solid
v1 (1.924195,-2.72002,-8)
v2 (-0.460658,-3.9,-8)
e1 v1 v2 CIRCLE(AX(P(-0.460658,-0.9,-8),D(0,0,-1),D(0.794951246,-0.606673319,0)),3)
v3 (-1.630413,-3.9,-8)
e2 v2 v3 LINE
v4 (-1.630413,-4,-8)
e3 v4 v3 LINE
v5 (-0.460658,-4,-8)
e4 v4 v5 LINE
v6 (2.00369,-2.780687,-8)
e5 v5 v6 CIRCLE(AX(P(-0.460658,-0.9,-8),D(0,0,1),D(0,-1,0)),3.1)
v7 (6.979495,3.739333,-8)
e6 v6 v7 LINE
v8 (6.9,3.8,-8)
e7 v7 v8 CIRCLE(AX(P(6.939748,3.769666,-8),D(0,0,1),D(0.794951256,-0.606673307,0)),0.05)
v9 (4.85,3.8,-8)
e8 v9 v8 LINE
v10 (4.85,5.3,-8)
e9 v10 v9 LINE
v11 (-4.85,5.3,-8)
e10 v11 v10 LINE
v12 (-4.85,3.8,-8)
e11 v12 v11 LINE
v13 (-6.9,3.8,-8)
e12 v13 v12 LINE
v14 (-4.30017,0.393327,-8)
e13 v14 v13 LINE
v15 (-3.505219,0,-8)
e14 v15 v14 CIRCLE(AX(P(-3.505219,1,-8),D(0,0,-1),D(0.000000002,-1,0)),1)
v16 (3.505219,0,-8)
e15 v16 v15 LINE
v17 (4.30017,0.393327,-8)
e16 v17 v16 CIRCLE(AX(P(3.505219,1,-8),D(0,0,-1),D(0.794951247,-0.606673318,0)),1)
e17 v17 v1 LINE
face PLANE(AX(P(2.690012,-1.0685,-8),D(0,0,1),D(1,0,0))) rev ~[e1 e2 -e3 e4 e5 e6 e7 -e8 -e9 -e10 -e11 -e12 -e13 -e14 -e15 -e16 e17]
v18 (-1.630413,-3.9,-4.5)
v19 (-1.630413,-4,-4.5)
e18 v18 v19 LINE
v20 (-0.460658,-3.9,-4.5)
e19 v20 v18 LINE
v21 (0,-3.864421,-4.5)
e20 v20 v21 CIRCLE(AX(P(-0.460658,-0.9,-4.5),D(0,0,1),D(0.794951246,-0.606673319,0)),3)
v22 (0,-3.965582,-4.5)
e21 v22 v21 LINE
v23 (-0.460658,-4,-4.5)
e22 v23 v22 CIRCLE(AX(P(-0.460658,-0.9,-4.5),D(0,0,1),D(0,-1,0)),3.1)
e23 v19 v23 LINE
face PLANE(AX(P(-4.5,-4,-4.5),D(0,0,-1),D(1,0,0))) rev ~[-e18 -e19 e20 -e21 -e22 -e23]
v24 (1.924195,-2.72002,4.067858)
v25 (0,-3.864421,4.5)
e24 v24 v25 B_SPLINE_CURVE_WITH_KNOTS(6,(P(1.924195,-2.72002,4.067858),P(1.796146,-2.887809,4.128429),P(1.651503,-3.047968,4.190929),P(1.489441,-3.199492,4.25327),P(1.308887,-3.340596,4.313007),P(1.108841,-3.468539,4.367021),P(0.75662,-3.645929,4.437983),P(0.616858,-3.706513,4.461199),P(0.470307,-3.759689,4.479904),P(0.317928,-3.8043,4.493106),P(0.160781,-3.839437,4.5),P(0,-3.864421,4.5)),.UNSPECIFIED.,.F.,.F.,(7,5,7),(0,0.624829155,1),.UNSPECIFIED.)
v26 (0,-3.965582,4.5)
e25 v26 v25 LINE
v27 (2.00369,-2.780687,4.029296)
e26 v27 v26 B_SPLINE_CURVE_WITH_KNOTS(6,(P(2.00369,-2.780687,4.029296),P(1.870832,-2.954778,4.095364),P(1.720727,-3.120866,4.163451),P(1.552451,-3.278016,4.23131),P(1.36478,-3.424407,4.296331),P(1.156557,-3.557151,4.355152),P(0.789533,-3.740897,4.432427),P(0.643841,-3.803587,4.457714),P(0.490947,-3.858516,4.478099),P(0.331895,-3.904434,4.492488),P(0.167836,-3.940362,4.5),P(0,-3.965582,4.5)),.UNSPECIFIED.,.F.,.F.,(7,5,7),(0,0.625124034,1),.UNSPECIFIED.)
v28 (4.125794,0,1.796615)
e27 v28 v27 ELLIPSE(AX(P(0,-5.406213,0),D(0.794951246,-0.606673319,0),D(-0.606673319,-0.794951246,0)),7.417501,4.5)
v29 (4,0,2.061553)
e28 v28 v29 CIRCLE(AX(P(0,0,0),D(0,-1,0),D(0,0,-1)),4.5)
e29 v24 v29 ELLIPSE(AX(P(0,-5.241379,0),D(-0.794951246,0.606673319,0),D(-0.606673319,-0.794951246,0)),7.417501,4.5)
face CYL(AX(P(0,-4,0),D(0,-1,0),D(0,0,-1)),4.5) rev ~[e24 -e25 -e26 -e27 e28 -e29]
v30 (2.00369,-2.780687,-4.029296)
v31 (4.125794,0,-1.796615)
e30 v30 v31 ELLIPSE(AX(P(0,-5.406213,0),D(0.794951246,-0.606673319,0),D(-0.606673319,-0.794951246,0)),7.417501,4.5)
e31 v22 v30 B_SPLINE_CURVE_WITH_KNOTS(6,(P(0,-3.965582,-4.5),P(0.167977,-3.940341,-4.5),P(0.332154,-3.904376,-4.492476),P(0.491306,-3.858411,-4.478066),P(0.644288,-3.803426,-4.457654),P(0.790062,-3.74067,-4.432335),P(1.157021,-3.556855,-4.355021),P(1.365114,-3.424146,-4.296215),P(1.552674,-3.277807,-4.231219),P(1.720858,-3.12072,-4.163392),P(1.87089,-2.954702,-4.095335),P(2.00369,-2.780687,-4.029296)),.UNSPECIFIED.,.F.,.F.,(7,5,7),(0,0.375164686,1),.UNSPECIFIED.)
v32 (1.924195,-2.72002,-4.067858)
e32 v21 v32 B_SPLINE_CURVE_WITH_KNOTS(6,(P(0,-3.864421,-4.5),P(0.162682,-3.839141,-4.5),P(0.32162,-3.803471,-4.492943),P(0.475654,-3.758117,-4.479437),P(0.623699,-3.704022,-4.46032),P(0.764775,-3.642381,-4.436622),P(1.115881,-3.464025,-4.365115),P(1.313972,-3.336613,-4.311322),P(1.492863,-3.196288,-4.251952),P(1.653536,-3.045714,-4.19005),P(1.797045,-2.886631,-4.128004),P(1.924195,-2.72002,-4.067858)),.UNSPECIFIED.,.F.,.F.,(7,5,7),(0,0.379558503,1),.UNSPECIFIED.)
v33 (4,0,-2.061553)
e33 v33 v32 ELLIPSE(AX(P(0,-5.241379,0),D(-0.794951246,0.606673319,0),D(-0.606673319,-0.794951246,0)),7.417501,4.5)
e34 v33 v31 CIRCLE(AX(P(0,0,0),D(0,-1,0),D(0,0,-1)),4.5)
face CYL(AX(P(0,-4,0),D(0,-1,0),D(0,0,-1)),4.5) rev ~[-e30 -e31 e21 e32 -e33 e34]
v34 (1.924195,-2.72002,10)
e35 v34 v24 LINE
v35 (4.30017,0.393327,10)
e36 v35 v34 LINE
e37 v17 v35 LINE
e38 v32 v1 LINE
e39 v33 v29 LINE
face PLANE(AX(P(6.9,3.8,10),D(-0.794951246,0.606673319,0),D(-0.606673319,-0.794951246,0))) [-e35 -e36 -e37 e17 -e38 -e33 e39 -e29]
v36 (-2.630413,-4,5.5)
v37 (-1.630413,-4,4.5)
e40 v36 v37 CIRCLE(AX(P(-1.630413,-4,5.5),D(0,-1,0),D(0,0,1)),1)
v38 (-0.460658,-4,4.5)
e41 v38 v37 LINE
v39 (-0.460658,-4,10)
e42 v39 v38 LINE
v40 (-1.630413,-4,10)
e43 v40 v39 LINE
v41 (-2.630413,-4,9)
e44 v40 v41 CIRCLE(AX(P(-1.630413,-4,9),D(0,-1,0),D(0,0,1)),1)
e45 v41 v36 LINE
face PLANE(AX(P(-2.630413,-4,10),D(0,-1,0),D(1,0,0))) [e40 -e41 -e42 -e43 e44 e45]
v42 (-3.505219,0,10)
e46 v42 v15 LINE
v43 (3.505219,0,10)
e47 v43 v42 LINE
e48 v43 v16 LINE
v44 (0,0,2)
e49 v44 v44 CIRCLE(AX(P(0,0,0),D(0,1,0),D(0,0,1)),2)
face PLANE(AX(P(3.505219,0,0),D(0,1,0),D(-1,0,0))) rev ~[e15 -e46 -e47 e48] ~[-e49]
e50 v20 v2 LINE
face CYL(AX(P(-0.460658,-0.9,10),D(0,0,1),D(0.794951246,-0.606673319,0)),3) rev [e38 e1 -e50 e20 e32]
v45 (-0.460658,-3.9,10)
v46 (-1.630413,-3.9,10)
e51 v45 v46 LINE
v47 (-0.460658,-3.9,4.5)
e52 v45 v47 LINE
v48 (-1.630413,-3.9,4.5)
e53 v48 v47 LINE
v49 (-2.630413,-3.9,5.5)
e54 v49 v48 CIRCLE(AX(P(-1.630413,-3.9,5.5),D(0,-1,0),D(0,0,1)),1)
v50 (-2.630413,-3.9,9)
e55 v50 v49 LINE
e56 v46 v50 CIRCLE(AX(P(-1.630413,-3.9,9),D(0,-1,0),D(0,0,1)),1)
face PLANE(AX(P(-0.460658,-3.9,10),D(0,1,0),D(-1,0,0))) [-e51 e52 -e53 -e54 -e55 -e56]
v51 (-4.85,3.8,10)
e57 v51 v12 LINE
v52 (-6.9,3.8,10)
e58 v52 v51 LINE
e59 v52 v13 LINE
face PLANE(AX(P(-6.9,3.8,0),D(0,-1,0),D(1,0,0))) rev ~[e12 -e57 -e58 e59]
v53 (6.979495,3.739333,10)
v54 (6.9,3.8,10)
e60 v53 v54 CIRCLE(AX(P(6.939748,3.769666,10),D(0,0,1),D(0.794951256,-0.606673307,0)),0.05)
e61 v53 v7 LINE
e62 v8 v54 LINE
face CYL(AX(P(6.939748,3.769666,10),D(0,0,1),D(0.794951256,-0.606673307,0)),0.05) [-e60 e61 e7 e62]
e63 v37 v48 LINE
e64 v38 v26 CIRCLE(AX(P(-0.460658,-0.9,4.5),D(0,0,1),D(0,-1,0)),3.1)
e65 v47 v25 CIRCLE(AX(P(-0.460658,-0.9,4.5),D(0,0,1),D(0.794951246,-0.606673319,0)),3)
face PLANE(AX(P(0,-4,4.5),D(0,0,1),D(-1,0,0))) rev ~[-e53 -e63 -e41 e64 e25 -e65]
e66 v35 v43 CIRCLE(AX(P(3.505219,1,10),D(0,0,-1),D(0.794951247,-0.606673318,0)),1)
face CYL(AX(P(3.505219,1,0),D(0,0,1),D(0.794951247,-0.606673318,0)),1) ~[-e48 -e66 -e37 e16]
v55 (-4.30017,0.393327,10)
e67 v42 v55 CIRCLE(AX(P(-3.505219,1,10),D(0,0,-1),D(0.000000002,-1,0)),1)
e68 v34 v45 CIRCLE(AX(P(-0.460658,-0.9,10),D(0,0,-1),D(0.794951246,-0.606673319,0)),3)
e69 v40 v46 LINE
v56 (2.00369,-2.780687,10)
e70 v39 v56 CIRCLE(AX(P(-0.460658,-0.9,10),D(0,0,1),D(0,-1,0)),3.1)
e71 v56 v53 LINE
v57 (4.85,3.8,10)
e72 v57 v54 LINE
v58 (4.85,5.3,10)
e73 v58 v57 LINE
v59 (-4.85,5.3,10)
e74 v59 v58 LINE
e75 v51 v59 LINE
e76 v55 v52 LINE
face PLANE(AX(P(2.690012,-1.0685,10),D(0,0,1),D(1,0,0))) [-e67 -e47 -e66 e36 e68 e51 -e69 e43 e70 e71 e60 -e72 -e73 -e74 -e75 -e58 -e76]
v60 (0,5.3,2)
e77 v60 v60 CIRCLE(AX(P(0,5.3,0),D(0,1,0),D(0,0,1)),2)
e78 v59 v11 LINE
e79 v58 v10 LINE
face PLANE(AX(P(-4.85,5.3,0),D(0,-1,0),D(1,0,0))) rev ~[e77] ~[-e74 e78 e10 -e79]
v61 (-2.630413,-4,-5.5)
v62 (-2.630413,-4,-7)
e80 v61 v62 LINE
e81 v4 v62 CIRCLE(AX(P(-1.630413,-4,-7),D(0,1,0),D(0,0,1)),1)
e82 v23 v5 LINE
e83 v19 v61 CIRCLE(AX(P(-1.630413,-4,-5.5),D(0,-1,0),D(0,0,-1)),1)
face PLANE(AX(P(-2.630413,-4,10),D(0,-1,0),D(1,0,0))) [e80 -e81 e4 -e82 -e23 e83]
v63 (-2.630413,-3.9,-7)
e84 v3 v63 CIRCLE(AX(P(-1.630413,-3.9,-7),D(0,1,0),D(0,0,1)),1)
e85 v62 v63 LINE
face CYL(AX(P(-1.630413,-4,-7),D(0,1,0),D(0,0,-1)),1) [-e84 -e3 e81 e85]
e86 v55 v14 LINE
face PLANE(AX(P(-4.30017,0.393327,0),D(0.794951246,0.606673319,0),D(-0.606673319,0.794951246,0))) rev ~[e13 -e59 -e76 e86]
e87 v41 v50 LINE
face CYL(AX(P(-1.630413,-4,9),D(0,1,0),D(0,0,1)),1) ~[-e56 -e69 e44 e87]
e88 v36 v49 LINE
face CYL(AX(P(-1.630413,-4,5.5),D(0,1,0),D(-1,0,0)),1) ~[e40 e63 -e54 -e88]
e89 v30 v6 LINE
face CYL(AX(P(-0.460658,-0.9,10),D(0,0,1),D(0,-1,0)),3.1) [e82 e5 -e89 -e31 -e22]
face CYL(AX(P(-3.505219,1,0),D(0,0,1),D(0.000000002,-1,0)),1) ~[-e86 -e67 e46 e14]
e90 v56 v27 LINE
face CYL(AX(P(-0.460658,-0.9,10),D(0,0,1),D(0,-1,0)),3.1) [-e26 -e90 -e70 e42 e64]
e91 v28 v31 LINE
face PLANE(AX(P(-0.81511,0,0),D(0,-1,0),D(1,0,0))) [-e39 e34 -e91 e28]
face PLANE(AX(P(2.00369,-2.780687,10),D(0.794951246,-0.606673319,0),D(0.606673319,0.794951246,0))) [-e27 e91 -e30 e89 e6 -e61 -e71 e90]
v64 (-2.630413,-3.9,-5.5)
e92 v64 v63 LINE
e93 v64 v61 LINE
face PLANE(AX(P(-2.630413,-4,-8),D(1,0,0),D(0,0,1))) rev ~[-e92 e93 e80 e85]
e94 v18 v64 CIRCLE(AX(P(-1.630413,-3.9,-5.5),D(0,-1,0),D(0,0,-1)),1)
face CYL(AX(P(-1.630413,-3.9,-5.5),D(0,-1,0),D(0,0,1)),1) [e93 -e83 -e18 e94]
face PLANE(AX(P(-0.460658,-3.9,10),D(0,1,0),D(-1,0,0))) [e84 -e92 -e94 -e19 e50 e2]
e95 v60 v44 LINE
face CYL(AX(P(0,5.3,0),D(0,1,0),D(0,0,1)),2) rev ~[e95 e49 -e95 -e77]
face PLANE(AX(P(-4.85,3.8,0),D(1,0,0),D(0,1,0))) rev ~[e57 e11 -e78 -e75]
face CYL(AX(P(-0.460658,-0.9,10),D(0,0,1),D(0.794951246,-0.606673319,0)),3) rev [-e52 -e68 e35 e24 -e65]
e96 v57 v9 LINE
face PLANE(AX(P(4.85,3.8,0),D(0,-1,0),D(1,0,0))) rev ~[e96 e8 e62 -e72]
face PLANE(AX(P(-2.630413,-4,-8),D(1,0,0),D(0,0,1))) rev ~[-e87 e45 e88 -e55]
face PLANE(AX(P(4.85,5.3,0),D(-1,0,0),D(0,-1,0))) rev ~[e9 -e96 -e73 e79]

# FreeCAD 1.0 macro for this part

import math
import FreeCAD as App
import Part
import Sketcher
from FreeCAD import Vector
Q = App.Units.Quantity


def edges_at(feature, points):
    """Names of the edges that pass closest to the given points."""
    edges = feature.Shape.Edges
    near = lambda p: min(range(len(edges)), key=lambda i: edges[i].distToShape(Part.Vertex(*p))[0])
    return sorted({f"Edge{near(p) + 1}" for p in points})


def add_polygon(sketch, points):
    """Adds a closed chain of lines whose ends are joined by coincident constraints."""
    first, n = sketch.GeometryCount, len(points)
    for a, b in zip(points, points[1:] + points[:1]):
        sketch.addGeometry(Part.LineSegment(App.Vector(*a, 0), App.Vector(*b, 0)), False)
    for i in range(n):
        sketch.addConstraint(Sketcher.Constraint("Coincident", first + i, 2, first + (i + 1) % n, 1))

doc = App.newDocument("Part")
body = doc.addObject("PartDesign::Body", "Body")

# Sketch on XY plane
sketch1 = body.newObject("Sketcher::SketchObject", "Sketch")
sketch1.AttachmentSupport = (doc.getObject("XY_Plane"), [""])
sketch1.MapMode = "FlatFace"
sketch1.addGeometry([
    Part.LineSegment(Vector(-3.5, 0, 0), Vector(3.5, 0, 0)),  # 0
    Part.ArcOfCircle(Part.Circle(Vector(3.5, 1, 0), Vector(0, 0, 1), 1), math.radians(-90), math.radians(-37)),  # 1
    Part.LineSegment(Vector(4.3, 0.4, 0), Vector(6.9, 3.8, 0)),  # 2
    Part.LineSegment(Vector(6.9, 3.8, 0), Vector(4.8, 3.8, 0)),  # 3
    Part.LineSegment(Vector(4.8, 3.8, 0), Vector(4.8, 5.3, 0)),  # 4
    Part.LineSegment(Vector(4.8, 5.3, 0), Vector(-4.8, 5.3, 0)),  # 5
    Part.LineSegment(Vector(-4.8, 5.3, 0), Vector(-4.8, 3.8, 0)),  # 6
    Part.LineSegment(Vector(-4.8, 3.8, 0), Vector(-6.9, 3.8, 0)),  # 7
    Part.LineSegment(Vector(-6.9, 3.8, 0), Vector(-4.3, 0.4, 0)),  # 8
    Part.ArcOfCircle(Part.Circle(Vector(-3.5, 1, 0), Vector(0, 0, 1), 1), math.radians(-143), math.radians(-90)),  # 9
], False)
sketch1.addConstraint([
    Sketcher.Constraint("Tangent", 0, 2, 1, 1),
    Sketcher.Constraint("Tangent", 1, 2, 2, 1),
    Sketcher.Constraint("Coincident", 2, 2, 3, 1),
    Sketcher.Constraint("Coincident", 3, 2, 4, 1),
    Sketcher.Constraint("Coincident", 4, 2, 5, 1),
    Sketcher.Constraint("Coincident", 5, 2, 6, 1),
    Sketcher.Constraint("Coincident", 6, 2, 7, 1),
    Sketcher.Constraint("Coincident", 7, 2, 8, 1),
    Sketcher.Constraint("Tangent", 8, 2, 9, 1),
    Sketcher.Constraint("Tangent", 9, 2, 0, 1),
    Sketcher.Constraint("Horizontal", 0),
    Sketcher.Constraint("Horizontal", 3),
    Sketcher.Constraint("Vertical", 4),
    Sketcher.Constraint("Horizontal", 5),
    Sketcher.Constraint("Vertical", 6),
    Sketcher.Constraint("Horizontal", 7),
    Sketcher.Constraint("Equal", 1, 9),
    Sketcher.Constraint("Symmetric", 0, 2, 9, 2, -1, 1),
    Sketcher.Constraint("Symmetric", 3, 2, 6, 2, -2),
    Sketcher.Constraint("Horizontal", 1, 2, 8, 2),
    Sketcher.Constraint("Radius", 1, Q("1 mm")),
    Sketcher.Constraint("DistanceX", 5, 2, 5, 1, Q("9.7 mm")),
    Sketcher.Constraint("DistanceY", 4, 1, 4, 2, Q("1.5 mm")),
    Sketcher.Constraint("DistanceX", 3, 2, 3, 1, Q("2.05 mm")),
    Sketcher.Constraint("DistanceY", -1, 1, 2, 2, Q("3.8 mm")),
    Sketcher.Constraint("DistanceX", 0, 1, 0, 2, Q("7.010438 mm")),
])
pad1 = body.newObject("PartDesign::Pad", "Pad")
pad1.Profile = sketch1
pad1.Type = "TwoLengths"
pad1.Length = 10
pad1.Length2 = 8

# Sketch on XZ plane
sketch2 = body.newObject("Sketcher::SketchObject", "Sketch001")
sketch2.AttachmentSupport = (doc.getObject("XZ_Plane"), [""])
sketch2.MapMode = "FlatFace"
sketch2.AttachmentOffset = App.Placement(Vector(0, 0, -5.3), App.Rotation())
sketch2.addGeometry(Part.Circle(Vector(0, 0, 0), Vector(0, 0, 1), 2), False)
sketch2.addConstraint([
    Sketcher.Constraint("Coincident", 0, 3, -1, 1),
    Sketcher.Constraint("Diameter", 0, Q("4 mm")),
])
pocket1 = body.newObject("PartDesign::Pocket", "Pocket")
pocket1.Profile = sketch2
pocket1.Type = "ThroughAll"
pocket1.Reversed = True

# Sketch on XY plane
sketch3 = body.newObject("Sketcher::SketchObject", "Sketch002")
sketch3.AttachmentSupport = (doc.getObject("XY_Plane"), [""])
sketch3.MapMode = "FlatFace"
sketch3.AttachmentOffset = App.Placement(Vector(0, 0, 10), App.Rotation())
sketch3.addGeometry([
    Part.LineSegment(Vector(6.9, 3.8, 0), Vector(1.92, -2.72, 0)),  # 0
    Part.ArcOfCircle(Part.Circle(Vector(-0.46, -0.9, 0), Vector(0, 0, 1), 3), math.radians(-90), math.radians(-37)),  # 1
    Part.LineSegment(Vector(-0.46, -3.9, 0), Vector(-2.63, -3.9, 0)),  # 2
    Part.ArcOfCircle(Part.Circle(Vector(-2.63, -3.95, 0), Vector(0, 0, 1), 0.05), math.radians(90), math.radians(270)),  # 3
    Part.LineSegment(Vector(-2.63, -4, 0), Vector(-0.46, -4, 0)),  # 4
    Part.ArcOfCircle(Part.Circle(Vector(-0.46, -0.9, 0), Vector(0, 0, 1), 3.1), math.radians(-90), math.radians(-37)),  # 5
    Part.LineSegment(Vector(2, -2.78, 0), Vector(6.98, 3.74, 0)),  # 6
    Part.ArcOfCircle(Part.Circle(Vector(6.94, 3.77, 0), Vector(0, 0, 1), 0.05), math.radians(-37), math.radians(143)),  # 7
], False)
sketch3.addConstraint([
    Sketcher.Constraint("Tangent", 0, 2, 1, 2),
    Sketcher.Constraint("Tangent", 1, 1, 2, 1),
    Sketcher.Constraint("Tangent", 2, 2, 3, 1),
    Sketcher.Constraint("Tangent", 3, 2, 4, 1),
    Sketcher.Constraint("Tangent", 4, 2, 5, 1),
    Sketcher.Constraint("Tangent", 5, 2, 6, 1),
    Sketcher.Constraint("Tangent", 6, 2, 7, 1),
    Sketcher.Constraint("Tangent", 7, 2, 0, 1),
    Sketcher.Constraint("Horizontal", 2),
    Sketcher.Constraint("Horizontal", 4),
    Sketcher.Constraint("Coincident", 5, 3, 1, 3),
    Sketcher.Constraint("Equal", 3, 7),
    Sketcher.Constraint("Radius", 1, Q("3 mm")),
    Sketcher.Constraint("Radius", 5, Q("3.1 mm")),
    Sketcher.Constraint("DistanceY", 3, 2, -1, 1, Q("4 mm")),
    Sketcher.Constraint("DistanceX", -1, 1, 7, 2, Q("6.9 mm")),
    Sketcher.Constraint("DistanceY", -1, 1, 7, 2, Q("3.8 mm")),
    Sketcher.Constraint("DistanceX", 0, 2, 6, 2, Q("5.0553 mm")),
    Sketcher.Constraint("DistanceX", 2, 2, 2, 1, Q("2.169755 mm")),
])
pad2 = body.newObject("PartDesign::Pad", "Pad001")
pad2.Profile = sketch3
pad2.Length = 18
pad2.Reversed = True

# Sketch on XZ plane
sketch4 = body.newObject("Sketcher::SketchObject", "Sketch003")
sketch4.AttachmentSupport = (doc.getObject("XZ_Plane"), [""])
sketch4.MapMode = "FlatFace"
sketch4.AttachmentOffset = App.Placement(Vector(0, 0, 4), App.Rotation())
sketch4.addGeometry([
    Part.LineSegment(Vector(0, 4.5, 0), Vector(-4.5, 4.5, 0)),
    Part.LineSegment(Vector(-4.5, 4.5, 0), Vector(-4.5, -4.5, 0)),
    Part.LineSegment(Vector(-4.5, -4.5, 0), Vector(0, -4.5, 0)),
    Part.ArcOfCircle(Part.Circle(Vector(0, 0, 0), Vector(0, 0, 1), 4.5), math.radians(-90), math.radians(90)),
], False)
sketch4.addConstraint([
    Sketcher.Constraint("Coincident", 0, 2, 1, 1),
    Sketcher.Constraint("Coincident", 1, 2, 2, 1),
    Sketcher.Constraint("Tangent", 2, 2, 3, 1),
    Sketcher.Constraint("Tangent", 3, 2, 0, 1),
    Sketcher.Constraint("Horizontal", 0),
    Sketcher.Constraint("Vertical", 1),
    Sketcher.Constraint("Horizontal", 2),
    Sketcher.Constraint("Coincident", 3, 3, -1, 1),
    Sketcher.Constraint("Radius", 3, Q("4.5 mm")),
    Sketcher.Constraint("DistanceX", 0, 2, 0, 1, Q("4.5 mm")),
])
pocket2 = body.newObject("PartDesign::Pocket", "Pocket001")
pocket2.Profile = sketch4
pocket2.Length = 4

# Sketch on XZ plane
sketch5 = body.newObject("Sketcher::SketchObject", "Sketch004")
sketch5.AttachmentSupport = (doc.getObject("XZ_Plane"), [""])
sketch5.MapMode = "FlatFace"
sketch5.AttachmentOffset = App.Placement(Vector(0, 0, 4), App.Rotation())
add_polygon(sketch5, [(-2.68, 10), (-2.68, -8), (-2.63, -8), (-2.63, 10)])  # lines 0-3
sketch5.addConstraint([
    Sketcher.Constraint("Vertical", 0),
    Sketcher.Constraint("Horizontal", 1),
    Sketcher.Constraint("Vertical", 2),
    Sketcher.Constraint("Horizontal", 3),
    Sketcher.Constraint("DistanceY", 0, 2, 0, 1, Q("18 mm")),
    Sketcher.Constraint("DistanceY", 0, 2, -1, 1, Q("8 mm")),
    Sketcher.Constraint("DistanceX", 1, 1, 1, 2, Q("0.05 mm")),
    Sketcher.Constraint("DistanceX", 0, 2, -1, 1, Q("2.680413 mm")),
])
pocket3 = body.newObject("PartDesign::Pocket", "Pocket002")
pocket3.Profile = sketch5
pocket3.Length = 1
doc.recompute()

fillet = body.newObject("PartDesign::Fillet", "Fillet")
fillet.Base = (pocket3, edges_at(pocket3, [
    (-2.63, -3.95, 4.5),
    (-2.63, -3.95, -4.5),
    (-2.63, -3.95, 10),
    (-2.63, -3.95, -8),
]))
fillet.Radius = 1

doc.recompute()
